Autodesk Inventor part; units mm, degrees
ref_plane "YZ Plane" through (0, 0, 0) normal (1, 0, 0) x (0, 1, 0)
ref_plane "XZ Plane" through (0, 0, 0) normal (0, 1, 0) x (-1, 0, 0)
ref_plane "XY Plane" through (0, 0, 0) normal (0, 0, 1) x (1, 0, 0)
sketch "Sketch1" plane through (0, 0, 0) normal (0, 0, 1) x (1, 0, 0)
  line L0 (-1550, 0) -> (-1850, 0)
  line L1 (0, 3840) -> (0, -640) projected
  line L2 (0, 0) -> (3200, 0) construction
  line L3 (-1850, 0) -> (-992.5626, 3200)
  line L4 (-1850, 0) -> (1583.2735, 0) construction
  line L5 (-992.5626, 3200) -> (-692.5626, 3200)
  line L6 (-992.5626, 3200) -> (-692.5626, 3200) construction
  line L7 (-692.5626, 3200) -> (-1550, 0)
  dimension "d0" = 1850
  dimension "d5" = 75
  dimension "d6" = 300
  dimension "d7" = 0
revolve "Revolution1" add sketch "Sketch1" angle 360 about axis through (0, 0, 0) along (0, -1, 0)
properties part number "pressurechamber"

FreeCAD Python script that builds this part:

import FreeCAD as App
import Part
import Sketcher
Q = App.Units.Quantity


def add_polygon(sketch, points):
    """Adds a closed chain of lines whose ends are joined by coincident constraints."""
    first, n = sketch.GeometryCount, len(points)
    for a, b in zip(points, points[1:] + points[:1]):
        sketch.addGeometry(Part.LineSegment(App.Vector(*a, 0), App.Vector(*b, 0)), False)
    for i in range(n):
        sketch.addConstraint(Sketcher.Constraint("Coincident", first + i, 2, first + (i + 1) % n, 1))

doc = App.newDocument("Part")
params = doc.addObject("Spreadsheet::Sheet", "Params")
for row, (alias, value) in enumerate([
    ("sketch1_width", "300 mm"),
    ("revolution_angle", "360 deg"),
], start=1):
    params.set(f"A{row}", alias)
    params.set(f"B{row}", "=" + value)
    params.setAlias(f"B{row}", alias)

body = doc.addObject("PartDesign::Body", "Body")

sketch1 = doc.addObject("Sketcher::SketchObject", "Sketch")
body.addObject(sketch1)
sketch1.AttachmentSupport = (doc.XY_Plane, [""])
sketch1.MapMode = "FlatFace"
add_polygon(sketch1, [(-1850, 0), (-1550, 0), (-692.5626, 3200), (-992.5626, 3200)])
sketch1.addConstraint(Sketcher.Constraint("Horizontal", 0))
sketch1.addConstraint(Sketcher.Constraint("Horizontal", 2))
sketch1.addConstraint(Sketcher.Constraint("PointOnObject", 0, 2, -1))
sketch1.addConstraint(Sketcher.Constraint("Parallel", 1, 3))
sketch1.addConstraint(Sketcher.Constraint("DistanceX", 0, 1, 0, 2, 300.0))
sketch1.addConstraint(Sketcher.Constraint("Angle", 1, Q("75 deg")))
sketch1.addConstraint(Sketcher.Constraint("DistanceX", 3, 2, -1, 1, 1850.0))
sketch1.addConstraint(Sketcher.Constraint("DistanceY", -1, 1, 1, 2, 3200.0))
sketch1.setExpression("Constraints[8]", "Params.sketch1_width")
revolution = doc.addObject("PartDesign::Revolution", "Revolution")
body.addObject(revolution)
revolution.Profile = sketch1
revolution.ReferenceAxis = (sketch1, ["V_Axis"])
revolution.setExpression("Angle", "Params.revolution_angle")

doc.recompute()
